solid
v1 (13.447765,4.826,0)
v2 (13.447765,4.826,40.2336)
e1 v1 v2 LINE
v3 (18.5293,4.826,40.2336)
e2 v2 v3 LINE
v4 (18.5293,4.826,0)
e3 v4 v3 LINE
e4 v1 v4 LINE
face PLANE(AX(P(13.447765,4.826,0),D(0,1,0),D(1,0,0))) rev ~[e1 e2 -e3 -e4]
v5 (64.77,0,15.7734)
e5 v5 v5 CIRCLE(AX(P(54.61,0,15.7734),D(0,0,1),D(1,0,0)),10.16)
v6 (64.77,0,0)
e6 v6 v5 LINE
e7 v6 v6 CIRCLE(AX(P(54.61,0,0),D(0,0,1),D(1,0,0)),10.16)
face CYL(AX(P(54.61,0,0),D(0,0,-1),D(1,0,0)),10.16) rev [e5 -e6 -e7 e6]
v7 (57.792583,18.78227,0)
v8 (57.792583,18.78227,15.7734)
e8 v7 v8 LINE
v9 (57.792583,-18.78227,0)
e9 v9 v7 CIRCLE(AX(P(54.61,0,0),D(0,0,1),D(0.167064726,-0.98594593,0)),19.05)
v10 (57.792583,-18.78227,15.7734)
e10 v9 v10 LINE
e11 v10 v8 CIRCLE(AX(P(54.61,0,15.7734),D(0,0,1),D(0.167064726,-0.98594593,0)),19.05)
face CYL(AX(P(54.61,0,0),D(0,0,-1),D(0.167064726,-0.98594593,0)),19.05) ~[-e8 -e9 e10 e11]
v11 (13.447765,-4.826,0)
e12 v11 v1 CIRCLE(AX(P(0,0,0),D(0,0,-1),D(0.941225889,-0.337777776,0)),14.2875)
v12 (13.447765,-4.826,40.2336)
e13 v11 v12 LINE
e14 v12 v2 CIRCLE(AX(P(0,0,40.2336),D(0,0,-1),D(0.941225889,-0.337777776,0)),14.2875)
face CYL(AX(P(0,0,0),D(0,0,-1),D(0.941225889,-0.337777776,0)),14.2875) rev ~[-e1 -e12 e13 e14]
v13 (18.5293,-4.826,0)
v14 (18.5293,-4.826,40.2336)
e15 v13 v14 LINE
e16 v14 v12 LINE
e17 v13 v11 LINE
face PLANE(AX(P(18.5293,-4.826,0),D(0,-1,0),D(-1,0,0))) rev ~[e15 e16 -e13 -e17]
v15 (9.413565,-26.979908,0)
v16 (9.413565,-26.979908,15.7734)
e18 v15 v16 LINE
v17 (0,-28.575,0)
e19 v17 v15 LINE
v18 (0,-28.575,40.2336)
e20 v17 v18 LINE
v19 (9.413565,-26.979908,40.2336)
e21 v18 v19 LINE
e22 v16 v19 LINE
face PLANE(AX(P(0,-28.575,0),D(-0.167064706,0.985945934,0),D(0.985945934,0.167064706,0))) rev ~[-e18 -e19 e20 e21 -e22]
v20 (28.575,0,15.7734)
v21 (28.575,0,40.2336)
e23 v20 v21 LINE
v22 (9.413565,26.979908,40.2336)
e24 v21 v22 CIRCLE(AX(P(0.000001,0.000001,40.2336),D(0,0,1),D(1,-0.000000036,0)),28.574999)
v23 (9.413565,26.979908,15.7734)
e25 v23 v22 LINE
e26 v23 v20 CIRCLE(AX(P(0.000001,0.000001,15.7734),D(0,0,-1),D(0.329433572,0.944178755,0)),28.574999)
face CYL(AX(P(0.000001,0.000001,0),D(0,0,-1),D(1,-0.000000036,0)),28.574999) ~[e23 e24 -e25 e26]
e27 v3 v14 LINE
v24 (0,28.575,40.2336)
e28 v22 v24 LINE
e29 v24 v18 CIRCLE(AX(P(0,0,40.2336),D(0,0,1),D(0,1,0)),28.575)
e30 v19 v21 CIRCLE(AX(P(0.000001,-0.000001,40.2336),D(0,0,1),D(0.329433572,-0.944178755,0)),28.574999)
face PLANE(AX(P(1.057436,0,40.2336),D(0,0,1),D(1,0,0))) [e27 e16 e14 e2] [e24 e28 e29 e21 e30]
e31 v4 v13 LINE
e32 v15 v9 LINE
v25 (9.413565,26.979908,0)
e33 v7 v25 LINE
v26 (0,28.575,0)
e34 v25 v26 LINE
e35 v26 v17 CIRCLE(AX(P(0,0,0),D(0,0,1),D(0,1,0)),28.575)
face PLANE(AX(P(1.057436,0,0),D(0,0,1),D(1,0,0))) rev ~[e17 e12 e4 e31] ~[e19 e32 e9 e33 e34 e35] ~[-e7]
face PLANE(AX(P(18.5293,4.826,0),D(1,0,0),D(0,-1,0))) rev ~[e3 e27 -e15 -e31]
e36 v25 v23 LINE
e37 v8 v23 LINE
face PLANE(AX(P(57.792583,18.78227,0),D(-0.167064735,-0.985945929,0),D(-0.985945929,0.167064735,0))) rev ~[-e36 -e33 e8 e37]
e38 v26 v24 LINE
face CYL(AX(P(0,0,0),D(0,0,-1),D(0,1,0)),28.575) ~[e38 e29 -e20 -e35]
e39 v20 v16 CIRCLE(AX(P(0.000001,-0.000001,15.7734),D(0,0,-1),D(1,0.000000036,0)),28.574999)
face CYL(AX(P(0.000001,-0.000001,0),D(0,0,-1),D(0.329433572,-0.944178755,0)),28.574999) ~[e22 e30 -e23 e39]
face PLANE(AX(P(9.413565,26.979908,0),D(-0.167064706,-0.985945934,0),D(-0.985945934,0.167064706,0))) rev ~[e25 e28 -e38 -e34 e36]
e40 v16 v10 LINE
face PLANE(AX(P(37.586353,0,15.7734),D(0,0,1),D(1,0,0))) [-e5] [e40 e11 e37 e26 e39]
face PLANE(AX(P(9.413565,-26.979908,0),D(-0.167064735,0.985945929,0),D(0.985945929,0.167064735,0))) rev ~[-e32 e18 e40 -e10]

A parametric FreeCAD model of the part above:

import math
import FreeCAD as App
import Part
import Sketcher

V = App.Vector
Q = App.Units.Quantity

doc = App.newDocument("Part")
body = doc.addObject("PartDesign::Body", "Body")

# Sketch on XY plane
sketch1 = doc.addObject("Sketcher::SketchObject", "Sketch")
body.addObject(sketch1)
sketch1.AttachmentSupport = (doc.XY_Plane, [""])
sketch1.MapMode = "FlatFace"
sketch1.addGeometry([
    Part.LineSegment(V(57.792583, 18.78227, 0), V(9.413565, 26.979908, 0)),  # 0
    Part.ArcOfCircle(Part.Circle(V(0.000001, 0.000001, 0), V(0, 0, 1), 28.574999), math.radians(-0.000002), math.radians(70.765601)),  # 1
    Part.ArcOfCircle(Part.Circle(V(0.000001, -0.000001, 0), V(0, 0, 1), 28.574999), math.radians(-70.765601), math.radians(0.000002)),  # 2
    Part.LineSegment(V(9.413565, -26.979908, 0), V(57.792583, -18.78227, 0)),  # 3
    Part.ArcOfCircle(Part.Circle(V(54.61, 0, 0), V(0, 0, 1), 19.05), math.radians(-80.3828), math.radians(80.3828)),  # 4
    Part.Circle(V(54.61, 0, 0), V(0, 0, 1), 10.16),  # 5
], False)
sketch1.addConstraint([
    Sketcher.Constraint("Coincident", 0, 2, 1, 2),
    Sketcher.Constraint("Tangent", 1, 1, 2, 2),
    Sketcher.Constraint("Coincident", 2, 1, 3, 1),
    Sketcher.Constraint("Tangent", 3, 2, 4, 1),
    Sketcher.Constraint("Tangent", 4, 2, 0, 1),
    Sketcher.Constraint("Coincident", 1, 3, -1, 1),
    Sketcher.Constraint("Coincident", 5, 3, 4, 3),
    Sketcher.Constraint("Equal", 1, 2),
    Sketcher.Constraint("Symmetric", 3, 2, 4, 2, -1),
    Sketcher.Constraint("PointOnObject", 1, 1, -1),
    Sketcher.Constraint("Diameter", 5, Q("0.8 in")),
    Sketcher.Constraint("Radius", 4, Q("0.75 in")),
    Sketcher.Constraint("Radius", 1, Q("1.125 in")),
    Sketcher.Constraint("DistanceX", -1, 1, 4, 3, Q("2.15 in")),
    Sketcher.Constraint("DistanceY", 2, 1, -1, 1, 26.979908),
])
pad1 = doc.addObject("PartDesign::Pad", "Pad")
body.addObject(pad1)
pad1.Profile = sketch1
pad1.Length = Q("0.621 in")

# Sketch on XY plane
sketch2 = doc.addObject("Sketcher::SketchObject", "Sketch001")
body.addObject(sketch2)
sketch2.AttachmentSupport = (doc.XY_Plane, [""])
sketch2.MapMode = "FlatFace"
sketch2.addGeometry([
    Part.LineSegment(V(9.413565, 26.979908, 0), V(0, 28.575, 0)),  # 0
    Part.ArcOfCircle(Part.Circle(V(0, 0, 0), V(0, 0, 1), 28.575), math.radians(90), math.radians(270)),  # 1
    Part.LineSegment(V(0, -28.575, 0), V(9.413565, -26.979908, 0)),  # 2
    Part.ArcOfCircle(Part.Circle(V(0.000001, -0.000001, 0), V(0, 0, 1), 28.574999), math.radians(-70.765601), math.radians(0.000002)),  # 3
    Part.ArcOfCircle(Part.Circle(V(0.000001, 0.000001, 0), V(0, 0, 1), 28.574999), math.radians(-0.000002), math.radians(70.765601)),  # 4
    Part.LineSegment(V(18.5293, -4.826, 0), V(13.447765, -4.826, 0)),  # 5
    Part.ArcOfCircle(Part.Circle(V(0, 0, 0), V(0, 0, 1), 14.2875), math.radians(19.741542), math.radians(340.258458)),  # 6
    Part.LineSegment(V(13.447765, 4.826, 0), V(18.5293, 4.826, 0)),  # 7
    Part.LineSegment(V(18.5293, 4.826, 0), V(18.5293, -4.826, 0)),  # 8
], False)
sketch2.addConstraint([
    Sketcher.Constraint("Coincident", 0, 2, 1, 1),
    Sketcher.Constraint("Coincident", 1, 2, 2, 1),
    Sketcher.Constraint("Coincident", 2, 2, 3, 1),
    Sketcher.Constraint("Tangent", 3, 2, 4, 1),
    Sketcher.Constraint("Coincident", 4, 2, 0, 1),
    Sketcher.Constraint("Coincident", 5, 2, 6, 2),
    Sketcher.Constraint("Coincident", 6, 1, 7, 1),
    Sketcher.Constraint("Coincident", 7, 2, 8, 1),
    Sketcher.Constraint("Coincident", 8, 2, 5, 1),
    Sketcher.Constraint("Horizontal", 5),
    Sketcher.Constraint("Horizontal", 7),
    Sketcher.Constraint("Vertical", 8),
    Sketcher.Constraint("Coincident", 1, 3, -1, 1),
    Sketcher.Constraint("Coincident", 3, 3, -1, 1),
    Sketcher.Constraint("Coincident", 6, 3, -1, 1),
    Sketcher.Constraint("Equal", 1, 3),
    Sketcher.Constraint("Equal", 3, 4),
    Sketcher.Constraint("PointOnObject", 0, 2, -2),
    Sketcher.Constraint("PointOnObject", 1, 2, -2),
    Sketcher.Constraint("PointOnObject", 3, 2, -1),
    Sketcher.Constraint("Vertical", 2, 2, 4, 2),
    Sketcher.Constraint("Vertical", 5, 2, 6, 1),
    Sketcher.Constraint("Radius", 1, Q("1.125 in")),
    Sketcher.Constraint("Radius", 6, Q("0.5625 in")),
    Sketcher.Constraint("DistanceY", 8, 2, 8, 1, Q("0.38 in")),
    Sketcher.Constraint("DistanceX", -1, 1, 7, 2, Q("0.7295 in")),
    Sketcher.Constraint("Distance", 0, 9.54775),
])
pad2 = doc.addObject("PartDesign::Pad", "Pad001")
body.addObject(pad2)
pad2.Profile = sketch2
pad2.Length = Q("1.584 in")

doc.recompute()
